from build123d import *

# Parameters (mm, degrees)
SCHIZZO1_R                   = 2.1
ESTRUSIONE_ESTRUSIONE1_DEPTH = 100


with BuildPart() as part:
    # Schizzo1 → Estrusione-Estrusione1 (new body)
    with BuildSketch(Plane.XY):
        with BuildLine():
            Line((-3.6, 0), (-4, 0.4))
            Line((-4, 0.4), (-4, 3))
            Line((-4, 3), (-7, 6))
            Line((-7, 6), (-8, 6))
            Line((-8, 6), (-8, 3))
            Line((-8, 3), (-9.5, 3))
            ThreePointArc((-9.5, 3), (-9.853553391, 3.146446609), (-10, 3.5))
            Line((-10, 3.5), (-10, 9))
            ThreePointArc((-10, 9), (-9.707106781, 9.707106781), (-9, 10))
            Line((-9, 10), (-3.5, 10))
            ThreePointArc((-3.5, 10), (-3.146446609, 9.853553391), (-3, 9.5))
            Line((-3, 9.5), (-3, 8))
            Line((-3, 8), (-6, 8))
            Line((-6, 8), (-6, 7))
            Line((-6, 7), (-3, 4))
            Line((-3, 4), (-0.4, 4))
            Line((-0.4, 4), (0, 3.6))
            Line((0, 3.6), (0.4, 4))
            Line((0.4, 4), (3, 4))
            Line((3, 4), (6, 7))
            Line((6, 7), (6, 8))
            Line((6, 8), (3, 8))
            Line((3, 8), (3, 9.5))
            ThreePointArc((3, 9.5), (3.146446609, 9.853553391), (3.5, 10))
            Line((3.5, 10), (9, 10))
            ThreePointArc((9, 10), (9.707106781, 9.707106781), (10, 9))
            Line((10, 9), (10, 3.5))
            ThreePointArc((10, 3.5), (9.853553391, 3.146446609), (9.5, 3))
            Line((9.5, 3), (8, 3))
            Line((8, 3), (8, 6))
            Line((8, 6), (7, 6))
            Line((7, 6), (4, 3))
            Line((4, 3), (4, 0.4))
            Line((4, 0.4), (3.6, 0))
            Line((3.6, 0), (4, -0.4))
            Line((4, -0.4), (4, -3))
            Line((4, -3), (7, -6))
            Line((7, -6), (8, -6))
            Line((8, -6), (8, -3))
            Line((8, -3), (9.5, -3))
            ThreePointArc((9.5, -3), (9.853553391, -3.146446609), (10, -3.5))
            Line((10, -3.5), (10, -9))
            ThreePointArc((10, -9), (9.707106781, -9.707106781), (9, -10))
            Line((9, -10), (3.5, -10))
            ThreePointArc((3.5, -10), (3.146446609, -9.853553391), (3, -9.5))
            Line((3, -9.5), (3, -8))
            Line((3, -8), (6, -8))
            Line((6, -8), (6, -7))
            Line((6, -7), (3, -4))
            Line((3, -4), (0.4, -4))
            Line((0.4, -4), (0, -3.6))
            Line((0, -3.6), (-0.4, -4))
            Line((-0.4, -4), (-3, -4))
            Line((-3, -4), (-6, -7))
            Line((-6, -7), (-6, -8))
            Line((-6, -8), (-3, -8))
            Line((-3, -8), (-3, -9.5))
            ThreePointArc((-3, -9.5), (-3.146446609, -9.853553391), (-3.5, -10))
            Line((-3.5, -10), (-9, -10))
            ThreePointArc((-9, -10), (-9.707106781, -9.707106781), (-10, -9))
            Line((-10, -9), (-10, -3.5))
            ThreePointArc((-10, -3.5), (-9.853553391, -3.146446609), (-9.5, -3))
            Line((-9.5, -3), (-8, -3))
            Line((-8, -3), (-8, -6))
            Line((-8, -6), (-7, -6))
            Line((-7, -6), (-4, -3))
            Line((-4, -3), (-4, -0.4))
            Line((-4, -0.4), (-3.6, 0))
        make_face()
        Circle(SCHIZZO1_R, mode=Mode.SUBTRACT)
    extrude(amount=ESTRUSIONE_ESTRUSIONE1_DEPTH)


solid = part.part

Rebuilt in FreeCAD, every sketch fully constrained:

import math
import FreeCAD as App
import Part
import Sketcher
Q = App.Units.Quantity

doc = App.newDocument("Part")
body = doc.addObject("PartDesign::Body", "Body")

# Sketch on XY plane
sketch1 = body.newObject("Sketcher::SketchObject", "Sketch")
sketch1.AttachmentSupport = (doc.getObject("XY_Plane"), [""])
sketch1.MapMode = "FlatFace"
sketch1.addGeometry(Part.LineSegment(App.Vector(-4, 0.4, 0), App.Vector(-3.6, 0, 0)), False)
sketch1.addGeometry(Part.LineSegment(App.Vector(-3.6, 0, 0), App.Vector(-4, -0.4, 0)), False)
sketch1.addGeometry(Part.LineSegment(App.Vector(-4, -0.4, 0), App.Vector(-4, -3, 0)), False)
sketch1.addGeometry(Part.LineSegment(App.Vector(-4, -3, 0), App.Vector(-7, -6, 0)), False)
sketch1.addGeometry(Part.LineSegment(App.Vector(-7, -6, 0), App.Vector(-8, -6, 0)), False)
sketch1.addGeometry(Part.LineSegment(App.Vector(-8, -6, 0), App.Vector(-8, -3, 0)), False)
sketch1.addGeometry(Part.LineSegment(App.Vector(-8, -3, 0), App.Vector(-9.5, -3, 0)), False)
sketch1.addGeometry(Part.ArcOfCircle(Part.Circle(App.Vector(-9.5, -3.5, 0), App.Vector(0, 0, 1), 0.5), math.radians(90), math.radians(180)), False)
sketch1.addGeometry(Part.LineSegment(App.Vector(-10, -3.5, 0), App.Vector(-10, -9, 0)), False)
sketch1.addGeometry(Part.ArcOfCircle(Part.Circle(App.Vector(-9, -9, 0), App.Vector(0, 0, 1), 1), math.radians(-180), math.radians(-90)), False)
sketch1.addGeometry(Part.LineSegment(App.Vector(-9, -10, 0), App.Vector(-3.5, -10, 0)), False)
sketch1.addGeometry(Part.ArcOfCircle(Part.Circle(App.Vector(-3.5, -9.5, 0), App.Vector(0, 0, 1), 0.5), math.radians(-90), math.radians(0)), False)
sketch1.addGeometry(Part.LineSegment(App.Vector(-3, -9.5, 0), App.Vector(-3, -8, 0)), False)
sketch1.addGeometry(Part.LineSegment(App.Vector(-3, -8, 0), App.Vector(-6, -8, 0)), False)
sketch1.addGeometry(Part.LineSegment(App.Vector(-6, -8, 0), App.Vector(-6, -7, 0)), False)
sketch1.addGeometry(Part.LineSegment(App.Vector(-6, -7, 0), App.Vector(-3, -4, 0)), False)
sketch1.addGeometry(Part.LineSegment(App.Vector(-3, -4, 0), App.Vector(-0.4, -4, 0)), False)
sketch1.addGeometry(Part.LineSegment(App.Vector(-0.4, -4, 0), App.Vector(0, -3.6, 0)), False)
sketch1.addGeometry(Part.LineSegment(App.Vector(0, -3.6, 0), App.Vector(0.4, -4, 0)), False)
sketch1.addGeometry(Part.LineSegment(App.Vector(0.4, -4, 0), App.Vector(3, -4, 0)), False)
sketch1.addGeometry(Part.LineSegment(App.Vector(3, -4, 0), App.Vector(6, -7, 0)), False)
sketch1.addGeometry(Part.LineSegment(App.Vector(6, -7, 0), App.Vector(6, -8, 0)), False)
sketch1.addGeometry(Part.LineSegment(App.Vector(6, -8, 0), App.Vector(3, -8, 0)), False)
sketch1.addGeometry(Part.LineSegment(App.Vector(3, -8, 0), App.Vector(3, -9.5, 0)), False)
sketch1.addGeometry(Part.ArcOfCircle(Part.Circle(App.Vector(3.5, -9.5, 0), App.Vector(0, 0, 1), 0.5), math.radians(180), math.radians(270)), False)
sketch1.addGeometry(Part.LineSegment(App.Vector(3.5, -10, 0), App.Vector(9, -10, 0)), False)
sketch1.addGeometry(Part.ArcOfCircle(Part.Circle(App.Vector(9, -9, 0), App.Vector(0, 0, 1), 1), math.radians(-90), math.radians(0)), False)
sketch1.addGeometry(Part.LineSegment(App.Vector(10, -9, 0), App.Vector(10, -3.5, 0)), False)
sketch1.addGeometry(Part.ArcOfCircle(Part.Circle(App.Vector(9.5, -3.5, 0), App.Vector(0, 0, 1), 0.5), math.radians(0), math.radians(90)), False)
sketch1.addGeometry(Part.LineSegment(App.Vector(9.5, -3, 0), App.Vector(8, -3, 0)), False)
sketch1.addGeometry(Part.LineSegment(App.Vector(8, -3, 0), App.Vector(8, -6, 0)), False)
sketch1.addGeometry(Part.LineSegment(App.Vector(8, -6, 0), App.Vector(7, -6, 0)), False)
sketch1.addGeometry(Part.LineSegment(App.Vector(7, -6, 0), App.Vector(4, -3, 0)), False)
sketch1.addGeometry(Part.LineSegment(App.Vector(4, -3, 0), App.Vector(4, -0.4, 0)), False)
sketch1.addGeometry(Part.LineSegment(App.Vector(4, -0.4, 0), App.Vector(3.6, 0, 0)), False)
sketch1.addGeometry(Part.LineSegment(App.Vector(3.6, 0, 0), App.Vector(4, 0.4, 0)), False)
sketch1.addGeometry(Part.LineSegment(App.Vector(4, 0.4, 0), App.Vector(4, 3, 0)), False)
sketch1.addGeometry(Part.LineSegment(App.Vector(4, 3, 0), App.Vector(7, 6, 0)), False)
sketch1.addGeometry(Part.LineSegment(App.Vector(7, 6, 0), App.Vector(8, 6, 0)), False)
sketch1.addGeometry(Part.LineSegment(App.Vector(8, 6, 0), App.Vector(8, 3, 0)), False)
sketch1.addGeometry(Part.LineSegment(App.Vector(8, 3, 0), App.Vector(9.5, 3, 0)), False)
sketch1.addGeometry(Part.ArcOfCircle(Part.Circle(App.Vector(9.5, 3.5, 0), App.Vector(0, 0, 1), 0.5), math.radians(-90), math.radians(0)), False)
sketch1.addGeometry(Part.LineSegment(App.Vector(10, 3.5, 0), App.Vector(10, 9, 0)), False)
sketch1.addGeometry(Part.ArcOfCircle(Part.Circle(App.Vector(9, 9, 0), App.Vector(0, 0, 1), 1), math.radians(0), math.radians(90)), False)
sketch1.addGeometry(Part.LineSegment(App.Vector(9, 10, 0), App.Vector(3.5, 10, 0)), False)
sketch1.addGeometry(Part.ArcOfCircle(Part.Circle(App.Vector(3.5, 9.5, 0), App.Vector(0, 0, 1), 0.5), math.radians(90), math.radians(180)), False)
sketch1.addGeometry(Part.LineSegment(App.Vector(3, 9.5, 0), App.Vector(3, 8, 0)), False)
sketch1.addGeometry(Part.LineSegment(App.Vector(3, 8, 0), App.Vector(6, 8, 0)), False)
sketch1.addGeometry(Part.LineSegment(App.Vector(6, 8, 0), App.Vector(6, 7, 0)), False)
sketch1.addGeometry(Part.LineSegment(App.Vector(6, 7, 0), App.Vector(3, 4, 0)), False)
sketch1.addGeometry(Part.LineSegment(App.Vector(3, 4, 0), App.Vector(0.4, 4, 0)), False)
sketch1.addGeometry(Part.LineSegment(App.Vector(0.4, 4, 0), App.Vector(0, 3.6, 0)), False)
sketch1.addGeometry(Part.LineSegment(App.Vector(0, 3.6, 0), App.Vector(-0.4, 4, 0)), False)
sketch1.addGeometry(Part.LineSegment(App.Vector(-0.4, 4, 0), App.Vector(-3, 4, 0)), False)
sketch1.addGeometry(Part.LineSegment(App.Vector(-3, 4, 0), App.Vector(-6, 7, 0)), False)
sketch1.addGeometry(Part.LineSegment(App.Vector(-6, 7, 0), App.Vector(-6, 8, 0)), False)
sketch1.addGeometry(Part.LineSegment(App.Vector(-6, 8, 0), App.Vector(-3, 8, 0)), False)
sketch1.addGeometry(Part.LineSegment(App.Vector(-3, 8, 0), App.Vector(-3, 9.5, 0)), False)
sketch1.addGeometry(Part.ArcOfCircle(Part.Circle(App.Vector(-3.5, 9.5, 0), App.Vector(0, 0, 1), 0.5), math.radians(0), math.radians(90)), False)
sketch1.addGeometry(Part.LineSegment(App.Vector(-3.5, 10, 0), App.Vector(-9, 10, 0)), False)
sketch1.addGeometry(Part.ArcOfCircle(Part.Circle(App.Vector(-9, 9, 0), App.Vector(0, 0, 1), 1), math.radians(90), math.radians(180)), False)
sketch1.addGeometry(Part.LineSegment(App.Vector(-10, 9, 0), App.Vector(-10, 3.5, 0)), False)
sketch1.addGeometry(Part.ArcOfCircle(Part.Circle(App.Vector(-9.5, 3.5, 0), App.Vector(0, 0, 1), 0.5), math.radians(180), math.radians(270)), False)
sketch1.addGeometry(Part.LineSegment(App.Vector(-9.5, 3, 0), App.Vector(-8, 3, 0)), False)
sketch1.addGeometry(Part.LineSegment(App.Vector(-8, 3, 0), App.Vector(-8, 6, 0)), False)
sketch1.addGeometry(Part.LineSegment(App.Vector(-8, 6, 0), App.Vector(-7, 6, 0)), False)
sketch1.addGeometry(Part.LineSegment(App.Vector(-7, 6, 0), App.Vector(-4, 3, 0)), False)
sketch1.addGeometry(Part.LineSegment(App.Vector(-4, 3, 0), App.Vector(-4, 0.4, 0)), False)
sketch1.addGeometry(Part.Circle(App.Vector(0, 0, 0), App.Vector(0, 0, 1), 2.1), False)
sketch1.addConstraint(Sketcher.Constraint("Coincident", 0, 2, 1, 1))
sketch1.addConstraint(Sketcher.Constraint("Coincident", 1, 2, 2, 1))
sketch1.addConstraint(Sketcher.Constraint("Coincident", 2, 2, 3, 1))
sketch1.addConstraint(Sketcher.Constraint("Coincident", 3, 2, 4, 1))
sketch1.addConstraint(Sketcher.Constraint("Coincident", 4, 2, 5, 1))
sketch1.addConstraint(Sketcher.Constraint("Coincident", 5, 2, 6, 1))
sketch1.addConstraint(Sketcher.Constraint("Tangent", 6, 2, 7, 1))
sketch1.addConstraint(Sketcher.Constraint("Tangent", 7, 2, 8, 1))
sketch1.addConstraint(Sketcher.Constraint("Tangent", 8, 2, 9, 1))
sketch1.addConstraint(Sketcher.Constraint("Tangent", 9, 2, 10, 1))
sketch1.addConstraint(Sketcher.Constraint("Tangent", 10, 2, 11, 1))
sketch1.addConstraint(Sketcher.Constraint("Tangent", 11, 2, 12, 1))
sketch1.addConstraint(Sketcher.Constraint("Coincident", 12, 2, 13, 1))
sketch1.addConstraint(Sketcher.Constraint("Coincident", 13, 2, 14, 1))
sketch1.addConstraint(Sketcher.Constraint("Coincident", 14, 2, 15, 1))
sketch1.addConstraint(Sketcher.Constraint("Coincident", 15, 2, 16, 1))
sketch1.addConstraint(Sketcher.Constraint("Coincident", 16, 2, 17, 1))
sketch1.addConstraint(Sketcher.Constraint("Coincident", 17, 2, 18, 1))
sketch1.addConstraint(Sketcher.Constraint("Coincident", 18, 2, 19, 1))
sketch1.addConstraint(Sketcher.Constraint("Coincident", 19, 2, 20, 1))
sketch1.addConstraint(Sketcher.Constraint("Coincident", 20, 2, 21, 1))
sketch1.addConstraint(Sketcher.Constraint("Coincident", 21, 2, 22, 1))
sketch1.addConstraint(Sketcher.Constraint("Coincident", 22, 2, 23, 1))
sketch1.addConstraint(Sketcher.Constraint("Tangent", 23, 2, 24, 1))
sketch1.addConstraint(Sketcher.Constraint("Tangent", 24, 2, 25, 1))
sketch1.addConstraint(Sketcher.Constraint("Tangent", 25, 2, 26, 1))
sketch1.addConstraint(Sketcher.Constraint("Tangent", 26, 2, 27, 1))
sketch1.addConstraint(Sketcher.Constraint("Tangent", 27, 2, 28, 1))
sketch1.addConstraint(Sketcher.Constraint("Tangent", 28, 2, 29, 1))
sketch1.addConstraint(Sketcher.Constraint("Coincident", 29, 2, 30, 1))
sketch1.addConstraint(Sketcher.Constraint("Coincident", 30, 2, 31, 1))
sketch1.addConstraint(Sketcher.Constraint("Coincident", 31, 2, 32, 1))
sketch1.addConstraint(Sketcher.Constraint("Coincident", 32, 2, 33, 1))
sketch1.addConstraint(Sketcher.Constraint("Coincident", 33, 2, 34, 1))
sketch1.addConstraint(Sketcher.Constraint("Coincident", 34, 2, 35, 1))
sketch1.addConstraint(Sketcher.Constraint("Coincident", 35, 2, 36, 1))
sketch1.addConstraint(Sketcher.Constraint("Coincident", 36, 2, 37, 1))
sketch1.addConstraint(Sketcher.Constraint("Coincident", 37, 2, 38, 1))
sketch1.addConstraint(Sketcher.Constraint("Coincident", 38, 2, 39, 1))
sketch1.addConstraint(Sketcher.Constraint("Coincident", 39, 2, 40, 1))
sketch1.addConstraint(Sketcher.Constraint("Tangent", 40, 2, 41, 1))
sketch1.addConstraint(Sketcher.Constraint("Tangent", 41, 2, 42, 1))
sketch1.addConstraint(Sketcher.Constraint("Tangent", 42, 2, 43, 1))
sketch1.addConstraint(Sketcher.Constraint("Tangent", 43, 2, 44, 1))
sketch1.addConstraint(Sketcher.Constraint("Tangent", 44, 2, 45, 1))
sketch1.addConstraint(Sketcher.Constraint("Tangent", 45, 2, 46, 1))
sketch1.addConstraint(Sketcher.Constraint("Coincident", 46, 2, 47, 1))
sketch1.addConstraint(Sketcher.Constraint("Coincident", 47, 2, 48, 1))
sketch1.addConstraint(Sketcher.Constraint("Coincident", 48, 2, 49, 1))
sketch1.addConstraint(Sketcher.Constraint("Coincident", 49, 2, 50, 1))
sketch1.addConstraint(Sketcher.Constraint("Coincident", 50, 2, 51, 1))
sketch1.addConstraint(Sketcher.Constraint("Coincident", 51, 2, 52, 1))
sketch1.addConstraint(Sketcher.Constraint("Coincident", 52, 2, 53, 1))
sketch1.addConstraint(Sketcher.Constraint("Coincident", 53, 2, 54, 1))
sketch1.addConstraint(Sketcher.Constraint("Coincident", 54, 2, 55, 1))
sketch1.addConstraint(Sketcher.Constraint("Coincident", 55, 2, 56, 1))
sketch1.addConstraint(Sketcher.Constraint("Coincident", 56, 2, 57, 1))
sketch1.addConstraint(Sketcher.Constraint("Tangent", 57, 2, 58, 1))
sketch1.addConstraint(Sketcher.Constraint("Tangent", 58, 2, 59, 1))
sketch1.addConstraint(Sketcher.Constraint("Tangent", 59, 2, 60, 1))
sketch1.addConstraint(Sketcher.Constraint("Tangent", 60, 2, 61, 1))
sketch1.addConstraint(Sketcher.Constraint("Tangent", 61, 2, 62, 1))
sketch1.addConstraint(Sketcher.Constraint("Tangent", 62, 2, 63, 1))
sketch1.addConstraint(Sketcher.Constraint("Coincident", 63, 2, 64, 1))
sketch1.addConstraint(Sketcher.Constraint("Coincident", 64, 2, 65, 1))
sketch1.addConstraint(Sketcher.Constraint("Coincident", 65, 2, 66, 1))
sketch1.addConstraint(Sketcher.Constraint("Coincident", 66, 2, 67, 1))
sketch1.addConstraint(Sketcher.Constraint("Coincident", 67, 2, 0, 1))
sketch1.addConstraint(Sketcher.Constraint("Vertical", 2))
sketch1.addConstraint(Sketcher.Constraint("Horizontal", 4))
sketch1.addConstraint(Sketcher.Constraint("Vertical", 5))
sketch1.addConstraint(Sketcher.Constraint("Horizontal", 6))
sketch1.addConstraint(Sketcher.Constraint("Vertical", 8))
sketch1.addConstraint(Sketcher.Constraint("Horizontal", 10))
sketch1.addConstraint(Sketcher.Constraint("Vertical", 12))
sketch1.addConstraint(Sketcher.Constraint("Horizontal", 13))
sketch1.addConstraint(Sketcher.Constraint("Vertical", 14))
sketch1.addConstraint(Sketcher.Constraint("Horizontal", 16))
sketch1.addConstraint(Sketcher.Constraint("Horizontal", 19))
sketch1.addConstraint(Sketcher.Constraint("Vertical", 21))
sketch1.addConstraint(Sketcher.Constraint("Horizontal", 22))
sketch1.addConstraint(Sketcher.Constraint("Vertical", 23))
sketch1.addConstraint(Sketcher.Constraint("Horizontal", 25))
sketch1.addConstraint(Sketcher.Constraint("Vertical", 27))
sketch1.addConstraint(Sketcher.Constraint("Horizontal", 29))
sketch1.addConstraint(Sketcher.Constraint("Vertical", 30))
sketch1.addConstraint(Sketcher.Constraint("Horizontal", 31))
sketch1.addConstraint(Sketcher.Constraint("Vertical", 33))
sketch1.addConstraint(Sketcher.Constraint("Vertical", 36))
sketch1.addConstraint(Sketcher.Constraint("Horizontal", 38))
sketch1.addConstraint(Sketcher.Constraint("Vertical", 39))
sketch1.addConstraint(Sketcher.Constraint("Horizontal", 40))
sketch1.addConstraint(Sketcher.Constraint("Vertical", 42))
sketch1.addConstraint(Sketcher.Constraint("Horizontal", 44))
sketch1.addConstraint(Sketcher.Constraint("Vertical", 46))
sketch1.addConstraint(Sketcher.Constraint("Horizontal", 47))
sketch1.addConstraint(Sketcher.Constraint("Vertical", 48))
sketch1.addConstraint(Sketcher.Constraint("Horizontal", 50))
sketch1.addConstraint(Sketcher.Constraint("Horizontal", 53))
sketch1.addConstraint(Sketcher.Constraint("Vertical", 55))
sketch1.addConstraint(Sketcher.Constraint("Horizontal", 56))
sketch1.addConstraint(Sketcher.Constraint("Vertical", 57))
sketch1.addConstraint(Sketcher.Constraint("Horizontal", 59))
sketch1.addConstraint(Sketcher.Constraint("Vertical", 61))
sketch1.addConstraint(Sketcher.Constraint("Horizontal", 63))
sketch1.addConstraint(Sketcher.Constraint("Vertical", 64))
sketch1.addConstraint(Sketcher.Constraint("Horizontal", 65))
sketch1.addConstraint(Sketcher.Constraint("Vertical", 67))
sketch1.addConstraint(Sketcher.Constraint("Coincident", 68, 3, -1, 1))
sketch1.addConstraint(Sketcher.Constraint("Equal", 7, 11))
sketch1.addConstraint(Sketcher.Constraint("Equal", 11, 24))
sketch1.addConstraint(Sketcher.Constraint("Equal", 9, 26))
sketch1.addConstraint(Sketcher.Constraint("Equal", 24, 28))
sketch1.addConstraint(Sketcher.Constraint("Equal", 28, 41))
sketch1.addConstraint(Sketcher.Constraint("Equal", 26, 43))
sketch1.addConstraint(Sketcher.Constraint("Equal", 41, 45))
sketch1.addConstraint(Sketcher.Constraint("Equal", 45, 58))
sketch1.addConstraint(Sketcher.Constraint("Equal", 43, 60))
sketch1.addConstraint(Sketcher.Constraint("Equal", 58, 62))
sketch1.addConstraint(Sketcher.Constraint("Symmetric", 7, 3, 41, 3, -1, 1))
sketch1.addConstraint(Sketcher.Constraint("Symmetric", 11, 3, 45, 3, -1, 1))
sketch1.addConstraint(Sketcher.Constraint("Symmetric", 24, 3, 58, 3, -1, 1))
sketch1.addConstraint(Sketcher.Constraint("Symmetric", 28, 3, 62, 3, -1, 1))
sketch1.addConstraint(Sketcher.Constraint("Symmetric", 0, 2, 34, 2, -1, 1))
sketch1.addConstraint(Sketcher.Constraint("Symmetric", 1, 2, 35, 2, -1, 1))
sketch1.addConstraint(Sketcher.Constraint("Symmetric", 3, 2, 37, 2, -1, 1))
sketch1.addConstraint(Sketcher.Constraint("Symmetric", 13, 2, 47, 2, -1, 1))
sketch1.addConstraint(Sketcher.Constraint("Symmetric", 15, 2, 49, 2, -1, 1))
sketch1.addConstraint(Sketcher.Constraint("Symmetric", 17, 2, 51, 2, -1, 1))
sketch1.addConstraint(Sketcher.Constraint("Symmetric", 18, 2, 52, 2, -1, 1))
sketch1.addConstraint(Sketcher.Constraint("Symmetric", 20, 2, 54, 2, -1, 1))
sketch1.addConstraint(Sketcher.Constraint("Symmetric", 30, 2, 64, 2, -1, 1))
sketch1.addConstraint(Sketcher.Constraint("Symmetric", 32, 2, 66, 2, -1, 1))
sketch1.addConstraint(Sketcher.Constraint("Symmetric", 11, 3, 24, 3, -2))
sketch1.addConstraint(Sketcher.Constraint("Symmetric", 7, 3, 28, 3, -2))
sketch1.addConstraint(Sketcher.Constraint("Symmetric", 16, 2, 18, 2, -2))
sketch1.addConstraint(Sketcher.Constraint("Symmetric", 14, 2, 20, 2, -2))
sketch1.addConstraint(Sketcher.Constraint("Symmetric", 4, 2, 30, 2, -2))
sketch1.addConstraint(Sketcher.Constraint("Symmetric", 2, 2, 32, 2, -2))
sketch1.addConstraint(Sketcher.Constraint("PointOnObject", 0, 2, -1))
sketch1.addConstraint(Sketcher.Constraint("PointOnObject", 17, 2, -2))
sketch1.addConstraint(Sketcher.Constraint("Perpendicular", 0, 1))
sketch1.addConstraint(Sketcher.Constraint("Parallel", 1, 3))
sketch1.addConstraint(Sketcher.Constraint("Parallel", 3, 15))
sketch1.addConstraint(Sketcher.Constraint("Parallel", 15, 17))
sketch1.addConstraint(Sketcher.Constraint("Perpendicular", 17, 18))
sketch1.addConstraint(Sketcher.Constraint("Parallel", 18, 20))
sketch1.addConstraint(Sketcher.Constraint("Parallel", 20, 32))
sketch1.addConstraint(Sketcher.Constraint("Parallel", 32, 34))
sketch1.addConstraint(Sketcher.Constraint("Parallel", 35, 37))
sketch1.addConstraint(Sketcher.Constraint("Parallel", 37, 49))
sketch1.addConstraint(Sketcher.Constraint("Parallel", 49, 51))
sketch1.addConstraint(Sketcher.Constraint("Parallel", 52, 54))
sketch1.addConstraint(Sketcher.Constraint("Parallel", 54, 66))
sketch1.addConstraint(Sketcher.Constraint("Horizontal", 2, 2, 5, 2))
sketch1.addConstraint(Sketcher.Constraint("Horizontal", 13, 2, 21, 2))
sketch1.addConstraint(Sketcher.Constraint("Horizontal", 47, 2, 55, 2))
sketch1.addConstraint(Sketcher.Constraint("Vertical", 12, 2, 15, 2))
sketch1.addConstraint(Sketcher.Constraint("Vertical", 30, 2, 38, 2))
sketch1.addConstraint(Sketcher.Constraint("Equal", 53, 2))
sketch1.addConstraint(Sketcher.Constraint("Equal", 56, 5))
sketch1.addConstraint(Sketcher.Constraint("Equal", 59, 8))
sketch1.addConstraint(Sketcher.Constraint("Equal", 63, 12))
sketch1.addConstraint(Sketcher.Constraint("Equal", 65, 14))
sketch1.addConstraint(Sketcher.Constraint("Equal", 1, 17))
sketch1.addConstraint(Sketcher.Constraint("Radius", 9, Q("1 mm")))
sketch1.addConstraint(Sketcher.Constraint("Diameter", 68, Q("4.2 mm")))
sketch1.addConstraint(Sketcher.Constraint("Radius", 7, Q("0.5 mm")))
sketch1.addConstraint(Sketcher.Constraint("DistanceX", 4, 2, 4, 1, Q("1 mm")))
sketch1.addConstraint(Sketcher.Constraint("DistanceX", 13, 2, 13, 1, Q("3 mm")))
sketch1.addConstraint(Sketcher.Constraint("DistanceX", 6, 2, 6, 1, Q("1.5 mm")))
sketch1.addConstraint(Sketcher.Constraint("DistanceX", 10, 1, 10, 2, Q("5.5 mm")))
sketch1.addConstraint(Sketcher.Constraint("DistanceX", 16, 1, 16, 2, Q("2.6 mm")))
sketch1.addConstraint(Sketcher.Constraint("DistanceX", 9, 3, -1, 1, Q("9 mm")))
pad1 = body.newObject("PartDesign::Pad", "Pad")
pad1.Profile = sketch1
pad1.Length = 100

doc.recompute()
